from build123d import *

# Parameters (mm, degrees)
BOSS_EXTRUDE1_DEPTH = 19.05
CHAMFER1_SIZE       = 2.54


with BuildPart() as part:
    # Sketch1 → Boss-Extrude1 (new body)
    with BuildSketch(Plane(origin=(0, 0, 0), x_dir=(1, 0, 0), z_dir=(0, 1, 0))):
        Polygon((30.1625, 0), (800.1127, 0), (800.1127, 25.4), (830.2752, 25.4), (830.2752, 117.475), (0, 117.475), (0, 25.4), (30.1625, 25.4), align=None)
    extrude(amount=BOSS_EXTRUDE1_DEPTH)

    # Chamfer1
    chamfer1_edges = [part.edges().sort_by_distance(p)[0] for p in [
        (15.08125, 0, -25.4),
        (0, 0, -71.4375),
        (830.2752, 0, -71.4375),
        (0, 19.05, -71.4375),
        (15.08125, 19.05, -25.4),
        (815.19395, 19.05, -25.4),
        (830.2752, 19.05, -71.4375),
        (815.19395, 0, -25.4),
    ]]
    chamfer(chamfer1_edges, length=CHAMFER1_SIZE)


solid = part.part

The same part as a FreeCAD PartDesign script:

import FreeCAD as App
import Part
import Sketcher

V = App.Vector
Q = App.Units.Quantity


def edges_at(feature, points):
    """Names of the edges that pass closest to the given points."""
    edges = feature.Shape.Edges
    near = lambda p: min(range(len(edges)), key=lambda i: edges[i].distToShape(Part.Vertex(*p))[0])
    return sorted({f"Edge{near(p) + 1}" for p in points})


def add_polygon(sketch, points):
    """Adds a closed chain of lines whose ends are joined by coincident constraints."""
    first, n = sketch.GeometryCount, len(points)
    for a, b in zip(points, points[1:] + points[:1]):
        sketch.addGeometry(Part.LineSegment(App.Vector(*a, 0), App.Vector(*b, 0)), False)
    for i in range(n):
        sketch.addConstraint(Sketcher.Constraint("Coincident", first + i, 2, first + (i + 1) % n, 1))

doc = App.newDocument("Part")
body = doc.addObject("PartDesign::Body", "Body")

# Sketch on XZ plane
sketch1 = body.newObject("Sketcher::SketchObject", "Sketch")
sketch1.AttachmentSupport = (doc.getObject("XZ_Plane"), [""])
sketch1.MapMode = "FlatFace"
add_polygon(sketch1, [(30, 0), (800, 0), (800, -25), (830, -25), (830, -117), (0, -117), (0, -25), (30, -25)])  # lines 0-7
sketch1.addConstraint(Sketcher.Constraint("Horizontal", 0))
sketch1.addConstraint(Sketcher.Constraint("Vertical", 1))
sketch1.addConstraint(Sketcher.Constraint("Horizontal", 2))
sketch1.addConstraint(Sketcher.Constraint("Vertical", 3))
sketch1.addConstraint(Sketcher.Constraint("Horizontal", 4))
sketch1.addConstraint(Sketcher.Constraint("Vertical", 5))
sketch1.addConstraint(Sketcher.Constraint("Horizontal", 6))
sketch1.addConstraint(Sketcher.Constraint("Vertical", 7))
sketch1.addConstraint(Sketcher.Constraint("PointOnObject", 0, 2, -1))
sketch1.addConstraint(Sketcher.Constraint("PointOnObject", 4, 2, -2))
sketch1.addConstraint(Sketcher.Constraint("Horizontal", 2, 2, 5, 2))
sketch1.addConstraint(Sketcher.Constraint("Equal", 2, 6))
sketch1.addConstraint(Sketcher.Constraint("DistanceY", 1, 2, 1, 1, Q("1 in")))
sketch1.addConstraint(Sketcher.Constraint("DistanceX", 0, 1, 0, 2, Q("30.313 in")))
sketch1.addConstraint(Sketcher.Constraint("DistanceX", 2, 1, 2, 2, Q("1.1875 in")))
sketch1.addConstraint(Sketcher.Constraint("DistanceY", 3, 2, 3, 1, Q("3.625 in")))
pad1 = body.newObject("PartDesign::Pad", "Pad")
pad1.Profile = sketch1
pad1.Length = Q("0.75 in")
pad1.Reversed = True
doc.recompute()

chamfer = body.newObject("PartDesign::Chamfer", "Chamfer")
chamfer.Base = (pad1, edges_at(pad1, [
    (15.081, 0, -25.4),
    (0, 0, -71.438),
    (830.275, 0, -71.438),
    (0, 19.05, -71.438),
    (15.081, 19.05, -25.4),
    (815.194, 19.05, -25.4),
    (830.275, 19.05, -71.438),
    (815.194, 0, -25.4),
]))
chamfer.Size = Q("0.1 in")

doc.recompute()
